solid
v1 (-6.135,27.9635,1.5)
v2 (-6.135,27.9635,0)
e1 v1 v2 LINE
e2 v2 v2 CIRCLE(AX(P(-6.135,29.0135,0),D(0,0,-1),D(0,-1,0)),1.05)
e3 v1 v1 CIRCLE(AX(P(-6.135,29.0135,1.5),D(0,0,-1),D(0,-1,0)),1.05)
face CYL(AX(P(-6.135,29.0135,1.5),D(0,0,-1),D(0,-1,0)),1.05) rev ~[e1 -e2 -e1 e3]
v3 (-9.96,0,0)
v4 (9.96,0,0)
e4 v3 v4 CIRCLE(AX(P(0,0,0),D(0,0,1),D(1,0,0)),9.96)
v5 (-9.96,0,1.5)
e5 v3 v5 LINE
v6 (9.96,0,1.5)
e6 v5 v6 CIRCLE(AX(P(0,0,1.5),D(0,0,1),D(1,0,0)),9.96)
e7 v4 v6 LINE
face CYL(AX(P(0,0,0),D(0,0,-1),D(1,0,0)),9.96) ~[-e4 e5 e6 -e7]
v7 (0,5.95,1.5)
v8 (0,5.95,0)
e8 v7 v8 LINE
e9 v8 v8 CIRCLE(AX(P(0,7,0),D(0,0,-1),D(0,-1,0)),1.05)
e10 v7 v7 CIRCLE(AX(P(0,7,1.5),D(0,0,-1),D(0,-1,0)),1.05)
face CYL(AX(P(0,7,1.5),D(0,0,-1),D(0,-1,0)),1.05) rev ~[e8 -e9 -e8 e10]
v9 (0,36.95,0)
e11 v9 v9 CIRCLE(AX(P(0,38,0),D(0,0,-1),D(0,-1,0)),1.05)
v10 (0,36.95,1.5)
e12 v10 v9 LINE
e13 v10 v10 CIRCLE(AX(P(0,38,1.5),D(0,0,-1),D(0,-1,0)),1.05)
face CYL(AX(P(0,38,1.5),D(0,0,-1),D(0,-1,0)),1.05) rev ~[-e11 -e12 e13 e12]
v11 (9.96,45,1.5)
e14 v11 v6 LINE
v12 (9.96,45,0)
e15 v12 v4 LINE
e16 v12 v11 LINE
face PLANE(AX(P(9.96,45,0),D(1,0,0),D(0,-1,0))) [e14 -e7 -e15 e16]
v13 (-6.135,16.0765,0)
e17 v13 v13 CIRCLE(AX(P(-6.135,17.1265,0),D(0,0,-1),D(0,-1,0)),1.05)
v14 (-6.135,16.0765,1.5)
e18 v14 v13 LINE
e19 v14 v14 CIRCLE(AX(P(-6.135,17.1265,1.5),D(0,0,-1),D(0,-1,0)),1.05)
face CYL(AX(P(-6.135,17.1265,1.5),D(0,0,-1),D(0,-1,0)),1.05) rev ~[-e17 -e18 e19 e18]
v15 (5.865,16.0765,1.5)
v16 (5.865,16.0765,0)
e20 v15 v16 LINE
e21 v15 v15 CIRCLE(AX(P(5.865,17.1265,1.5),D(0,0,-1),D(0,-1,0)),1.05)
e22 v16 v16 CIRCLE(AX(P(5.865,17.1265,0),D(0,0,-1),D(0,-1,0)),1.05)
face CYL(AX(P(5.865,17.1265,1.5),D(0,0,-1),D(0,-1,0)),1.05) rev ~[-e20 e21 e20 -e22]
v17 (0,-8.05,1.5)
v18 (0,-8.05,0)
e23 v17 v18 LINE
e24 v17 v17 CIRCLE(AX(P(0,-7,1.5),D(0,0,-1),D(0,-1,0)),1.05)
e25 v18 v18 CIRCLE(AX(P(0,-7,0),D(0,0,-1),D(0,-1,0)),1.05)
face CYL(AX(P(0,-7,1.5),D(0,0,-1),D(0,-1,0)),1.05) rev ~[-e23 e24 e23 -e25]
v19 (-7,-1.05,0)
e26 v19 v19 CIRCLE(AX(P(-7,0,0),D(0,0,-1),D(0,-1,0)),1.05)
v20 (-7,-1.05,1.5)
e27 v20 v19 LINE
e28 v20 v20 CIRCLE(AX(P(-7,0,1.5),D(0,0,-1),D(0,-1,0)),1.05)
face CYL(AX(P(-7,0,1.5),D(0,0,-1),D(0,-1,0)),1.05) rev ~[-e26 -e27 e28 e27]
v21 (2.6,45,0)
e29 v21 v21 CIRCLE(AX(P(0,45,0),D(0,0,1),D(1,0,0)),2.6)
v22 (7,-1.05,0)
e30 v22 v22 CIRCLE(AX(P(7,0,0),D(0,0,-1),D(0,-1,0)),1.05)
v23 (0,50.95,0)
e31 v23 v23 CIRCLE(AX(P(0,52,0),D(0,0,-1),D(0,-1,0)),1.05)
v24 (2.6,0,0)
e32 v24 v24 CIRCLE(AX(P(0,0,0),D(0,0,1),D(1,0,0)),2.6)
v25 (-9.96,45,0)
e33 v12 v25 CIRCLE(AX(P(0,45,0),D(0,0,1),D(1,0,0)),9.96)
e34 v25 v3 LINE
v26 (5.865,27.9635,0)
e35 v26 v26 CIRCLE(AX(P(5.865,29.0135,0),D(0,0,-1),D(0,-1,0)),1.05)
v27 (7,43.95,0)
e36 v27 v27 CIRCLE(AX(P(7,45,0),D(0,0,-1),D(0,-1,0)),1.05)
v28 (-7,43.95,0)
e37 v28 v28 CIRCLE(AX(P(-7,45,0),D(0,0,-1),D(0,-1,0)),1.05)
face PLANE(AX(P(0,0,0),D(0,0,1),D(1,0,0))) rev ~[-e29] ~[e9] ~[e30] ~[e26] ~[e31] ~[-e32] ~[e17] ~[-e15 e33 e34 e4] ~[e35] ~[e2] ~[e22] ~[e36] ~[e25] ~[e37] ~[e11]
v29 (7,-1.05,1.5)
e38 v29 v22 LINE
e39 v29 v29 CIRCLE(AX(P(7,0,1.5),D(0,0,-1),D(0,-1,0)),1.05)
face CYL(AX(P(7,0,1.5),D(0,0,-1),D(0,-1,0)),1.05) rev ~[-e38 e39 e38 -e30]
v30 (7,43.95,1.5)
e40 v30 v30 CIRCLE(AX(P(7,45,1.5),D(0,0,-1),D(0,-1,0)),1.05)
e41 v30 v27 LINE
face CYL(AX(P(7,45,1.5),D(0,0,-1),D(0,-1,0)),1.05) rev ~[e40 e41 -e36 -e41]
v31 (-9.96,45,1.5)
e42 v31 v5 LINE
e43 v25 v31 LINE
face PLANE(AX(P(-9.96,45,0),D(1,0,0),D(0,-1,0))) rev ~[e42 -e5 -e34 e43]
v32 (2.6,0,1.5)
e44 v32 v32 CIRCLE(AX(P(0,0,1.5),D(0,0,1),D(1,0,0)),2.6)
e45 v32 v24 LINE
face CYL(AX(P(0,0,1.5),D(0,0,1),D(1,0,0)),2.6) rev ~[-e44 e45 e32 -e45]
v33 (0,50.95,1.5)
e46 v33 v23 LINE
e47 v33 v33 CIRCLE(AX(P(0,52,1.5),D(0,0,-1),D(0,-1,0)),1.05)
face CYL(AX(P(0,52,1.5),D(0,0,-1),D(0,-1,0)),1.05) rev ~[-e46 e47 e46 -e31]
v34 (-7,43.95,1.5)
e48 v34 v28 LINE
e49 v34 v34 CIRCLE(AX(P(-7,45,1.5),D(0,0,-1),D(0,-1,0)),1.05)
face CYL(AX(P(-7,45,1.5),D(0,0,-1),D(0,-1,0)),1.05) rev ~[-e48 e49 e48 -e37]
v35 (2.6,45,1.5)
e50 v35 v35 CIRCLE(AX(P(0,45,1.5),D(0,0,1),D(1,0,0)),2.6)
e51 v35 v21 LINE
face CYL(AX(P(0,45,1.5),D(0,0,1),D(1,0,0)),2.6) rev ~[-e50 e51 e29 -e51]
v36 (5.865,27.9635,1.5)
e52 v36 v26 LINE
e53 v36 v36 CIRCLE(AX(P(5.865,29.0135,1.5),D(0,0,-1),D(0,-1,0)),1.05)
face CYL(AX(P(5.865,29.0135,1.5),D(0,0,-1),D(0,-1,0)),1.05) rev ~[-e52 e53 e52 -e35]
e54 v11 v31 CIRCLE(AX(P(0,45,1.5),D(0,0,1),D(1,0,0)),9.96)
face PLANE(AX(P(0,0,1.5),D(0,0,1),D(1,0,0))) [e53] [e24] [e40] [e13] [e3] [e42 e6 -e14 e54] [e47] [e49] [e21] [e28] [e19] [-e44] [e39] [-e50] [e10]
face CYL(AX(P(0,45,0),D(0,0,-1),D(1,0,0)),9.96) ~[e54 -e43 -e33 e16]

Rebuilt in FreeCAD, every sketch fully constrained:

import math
import FreeCAD as App
import Part
import Sketcher

V = App.Vector
Q = App.Units.Quantity

doc = App.newDocument("Part")
params = doc.addObject("Spreadsheet::Sheet", "Params")
for row, (alias, value) in enumerate([
    ("sketch1_height", "45 mm"),
    ("sketch1_radius", "9.96 mm"),
    ("pad1_length", "1.5 mm"),
    ("sketch2_diameter", "2.1 mm"),
    ("hole_diameter", "2.1 mm"),
    ("sketch3_diameter", "5.2 mm"),
    ("sketch4_diameter", "2.1 mm"),
    ("hole2_diameter", "2.1 mm"),
], start=1):
    params.set(f"A{row}", alias)
    params.set(f"B{row}", "=" + value)
    params.setAlias(f"B{row}", alias)

body = doc.addObject("PartDesign::Body", "Body")

sketch1 = body.newObject("Sketcher::SketchObject", "Sketch")
sketch1.AttachmentSupport = (doc.getObject("XY_Plane"), [""])
sketch1.MapMode = "FlatFace"
sketch1.addGeometry(Part.ArcOfCircle(Part.Circle(V(0, 0, 0), V(0, 0, 1), 9.96), math.radians(180), math.radians(360)), False)
sketch1.addGeometry(Part.LineSegment(V(9.96, 0, 0), V(9.96, 45, 0)), False)
sketch1.addGeometry(Part.ArcOfCircle(Part.Circle(V(0, 45, 0), V(0, 0, 1), 9.96), math.radians(0), math.radians(180)), False)
sketch1.addGeometry(Part.LineSegment(V(-9.96, 45, 0), V(-9.96, 0, 0)), False)
sketch1.addConstraint(Sketcher.Constraint("Tangent", 0, 2, 1, 1))
sketch1.addConstraint(Sketcher.Constraint("Tangent", 1, 2, 2, 1))
sketch1.addConstraint(Sketcher.Constraint("Tangent", 2, 2, 3, 1))
sketch1.addConstraint(Sketcher.Constraint("Tangent", 3, 2, 0, 1))
sketch1.addConstraint(Sketcher.Constraint("Vertical", 1))
sketch1.addConstraint(Sketcher.Constraint("Vertical", 3))
sketch1.addConstraint(Sketcher.Constraint("Coincident", 0, 3, -1, 1))
sketch1.addConstraint(Sketcher.Constraint("DistanceY", 1, 1, 1, 2, Q("45 mm")))
sketch1.addConstraint(Sketcher.Constraint("Radius", 0, Q("9.96 mm")))
sketch1.setExpression("Constraints[7]", "Params.sketch1_height")
sketch1.setExpression("Constraints[8]", "Params.sketch1_radius")
pad1 = body.newObject("PartDesign::Pad", "Pad")
pad1.Profile = sketch1
pad1.setExpression("Length", "Params.pad1_length")

sketch2 = body.newObject("Sketcher::SketchObject", "Sketch001")
sketch2.AttachmentSupport = (doc.getObject("XY_Plane"), [""])
sketch2.MapMode = "FlatFace"
sketch2.AttachmentOffset = App.Placement(V(0, 0, 1.5), App.Rotation())
sketch2.addGeometry(Part.Circle(V(0, 52, 0), V(0, 0, 1), 1.05), False)
sketch2.addGeometry(Part.Circle(V(-7, 45, 0), V(0, 0, 1), 1.05), False)
sketch2.addGeometry(Part.Circle(V(0, 38, 0), V(0, 0, 1), 1.05), False)
sketch2.addGeometry(Part.Circle(V(7, 45, 0), V(0, 0, 1), 1.05), False)
sketch2.addGeometry(Part.Circle(V(0, 7, 0), V(0, 0, 1), 1.05), False)
sketch2.addGeometry(Part.Circle(V(-7, 0, 0), V(0, 0, 1), 1.05), False)
sketch2.addGeometry(Part.Circle(V(0, -7, 0), V(0, 0, 1), 1.05), False)
sketch2.addGeometry(Part.Circle(V(7, 0, 0), V(0, 0, 1), 1.05), False)
sketch2.addConstraint(Sketcher.Constraint("Equal", 0, 1))
sketch2.addConstraint(Sketcher.Constraint("Equal", 1, 2))
sketch2.addConstraint(Sketcher.Constraint("Equal", 2, 3))
sketch2.addConstraint(Sketcher.Constraint("Equal", 3, 4))
sketch2.addConstraint(Sketcher.Constraint("Equal", 4, 5))
sketch2.addConstraint(Sketcher.Constraint("Equal", 5, 6))
sketch2.addConstraint(Sketcher.Constraint("Equal", 6, 7))
sketch2.addConstraint(Sketcher.Constraint("Symmetric", 4, 3, 6, 3, -1, 1))
sketch2.addConstraint(Sketcher.Constraint("Symmetric", 5, 3, 7, 3, -1, 1))
sketch2.addConstraint(Sketcher.Constraint("Symmetric", 1, 3, 3, 3, -2))
sketch2.addConstraint(Sketcher.Constraint("PointOnObject", 0, 3, -2))
sketch2.addConstraint(Sketcher.Constraint("PointOnObject", 2, 3, -2))
sketch2.addConstraint(Sketcher.Constraint("PointOnObject", 4, 3, -2))
sketch2.addConstraint(Sketcher.Constraint("PointOnObject", 5, 3, -1))
sketch2.addConstraint(Sketcher.Constraint("Vertical", 1, 3, 5, 3))
sketch2.addConstraint(Sketcher.Constraint("Diameter", 0, Q("2.1 mm")))
sketch2.addConstraint(Sketcher.Constraint("DistanceY", -1, 1, 0, 3, Q("52 mm")))
sketch2.addConstraint(Sketcher.Constraint("DistanceX", 1, 3, -1, 1, Q("7 mm")))
sketch2.addConstraint(Sketcher.Constraint("DistanceY", -1, 1, 1, 3, Q("45 mm")))
sketch2.addConstraint(Sketcher.Constraint("DistanceY", -1, 1, 2, 3, Q("38 mm")))
sketch2.addConstraint(Sketcher.Constraint("DistanceY", -1, 1, 4, 3, Q("7 mm")))
sketch2.setExpression("Constraints[15]", "Params.sketch2_diameter")
doc.recompute()
hole = body.newObject("PartDesign::Hole", "Hole")
hole.Profile = sketch2
hole.ThreadType = "None"
hole.setExpression("Diameter", "Params.hole_diameter")
hole.DepthType = "ThroughAll"

sketch3 = body.newObject("Sketcher::SketchObject", "Sketch002")
sketch3.AttachmentSupport = (doc.getObject("XY_Plane"), [""])
sketch3.MapMode = "FlatFace"
sketch3.AttachmentOffset = App.Placement(V(0, 0, 1.5), App.Rotation())
sketch3.addGeometry(Part.Circle(V(0, 0, 0), V(0, 0, 1), 2.6), False)
sketch3.addGeometry(Part.Circle(V(0, 45, 0), V(0, 0, 1), 2.6), False)
sketch3.addConstraint(Sketcher.Constraint("Coincident", 0, 3, -1, 1))
sketch3.addConstraint(Sketcher.Constraint("Equal", 0, 1))
sketch3.addConstraint(Sketcher.Constraint("PointOnObject", 1, 3, -2))
sketch3.addConstraint(Sketcher.Constraint("Diameter", 0, Q("5.2 mm")))
sketch3.addConstraint(Sketcher.Constraint("DistanceY", -1, 1, 1, 3, Q("45 mm")))
sketch3.setExpression("Constraints[3]", "Params.sketch3_diameter")
pocket1 = body.newObject("PartDesign::Pocket", "Pocket")
pocket1.Profile = sketch3
pocket1.Type = "ThroughAll"

sketch4 = body.newObject("Sketcher::SketchObject", "Sketch003")
sketch4.AttachmentSupport = (doc.getObject("XY_Plane"), [""])
sketch4.MapMode = "FlatFace"
sketch4.AttachmentOffset = App.Placement(V(0, 0, 1.5), App.Rotation())
sketch4.addGeometry(Part.Circle(V(-6.135, 29.0135, 0), V(0, 0, 1), 1.05), False)
sketch4.addGeometry(Part.Circle(V(5.865, 29.0135, 0), V(0, 0, 1), 1.05), False)
sketch4.addGeometry(Part.Circle(V(-6.135, 17.1265, 0), V(0, 0, 1), 1.05), False)
sketch4.addGeometry(Part.Circle(V(5.865, 17.1265, 0), V(0, 0, 1), 1.05), False)
sketch4.addConstraint(Sketcher.Constraint("Equal", 0, 1))
sketch4.addConstraint(Sketcher.Constraint("Equal", 1, 2))
sketch4.addConstraint(Sketcher.Constraint("Equal", 2, 3))
sketch4.addConstraint(Sketcher.Constraint("Horizontal", 0, 3, 1, 3))
sketch4.addConstraint(Sketcher.Constraint("Horizontal", 2, 3, 3, 3))
sketch4.addConstraint(Sketcher.Constraint("Vertical", 0, 3, 2, 3))
sketch4.addConstraint(Sketcher.Constraint("Vertical", 1, 3, 3, 3))
sketch4.addConstraint(Sketcher.Constraint("Diameter", 0, Q("2.1 mm")))
sketch4.addConstraint(Sketcher.Constraint("DistanceX", 0, 3, 1, 3, Q("12 mm")))
sketch4.addConstraint(Sketcher.Constraint("DistanceX", 0, 3, -1, 1, Q("6.135 mm")))
sketch4.addConstraint(Sketcher.Constraint("DistanceY", 2, 3, 0, 3, Q("11.887 mm")))
sketch4.addConstraint(Sketcher.Constraint("DistanceY", -1, 1, 0, 3, Q("29.0135 mm")))
sketch4.setExpression("Constraints[7]", "Params.sketch4_diameter")
doc.recompute()
hole2 = body.newObject("PartDesign::Hole", "Hole001")
hole2.Profile = sketch4
hole2.ThreadType = "None"
hole2.setExpression("Diameter", "Params.hole2_diameter")
hole2.DepthType = "ThroughAll"

doc.recompute()
